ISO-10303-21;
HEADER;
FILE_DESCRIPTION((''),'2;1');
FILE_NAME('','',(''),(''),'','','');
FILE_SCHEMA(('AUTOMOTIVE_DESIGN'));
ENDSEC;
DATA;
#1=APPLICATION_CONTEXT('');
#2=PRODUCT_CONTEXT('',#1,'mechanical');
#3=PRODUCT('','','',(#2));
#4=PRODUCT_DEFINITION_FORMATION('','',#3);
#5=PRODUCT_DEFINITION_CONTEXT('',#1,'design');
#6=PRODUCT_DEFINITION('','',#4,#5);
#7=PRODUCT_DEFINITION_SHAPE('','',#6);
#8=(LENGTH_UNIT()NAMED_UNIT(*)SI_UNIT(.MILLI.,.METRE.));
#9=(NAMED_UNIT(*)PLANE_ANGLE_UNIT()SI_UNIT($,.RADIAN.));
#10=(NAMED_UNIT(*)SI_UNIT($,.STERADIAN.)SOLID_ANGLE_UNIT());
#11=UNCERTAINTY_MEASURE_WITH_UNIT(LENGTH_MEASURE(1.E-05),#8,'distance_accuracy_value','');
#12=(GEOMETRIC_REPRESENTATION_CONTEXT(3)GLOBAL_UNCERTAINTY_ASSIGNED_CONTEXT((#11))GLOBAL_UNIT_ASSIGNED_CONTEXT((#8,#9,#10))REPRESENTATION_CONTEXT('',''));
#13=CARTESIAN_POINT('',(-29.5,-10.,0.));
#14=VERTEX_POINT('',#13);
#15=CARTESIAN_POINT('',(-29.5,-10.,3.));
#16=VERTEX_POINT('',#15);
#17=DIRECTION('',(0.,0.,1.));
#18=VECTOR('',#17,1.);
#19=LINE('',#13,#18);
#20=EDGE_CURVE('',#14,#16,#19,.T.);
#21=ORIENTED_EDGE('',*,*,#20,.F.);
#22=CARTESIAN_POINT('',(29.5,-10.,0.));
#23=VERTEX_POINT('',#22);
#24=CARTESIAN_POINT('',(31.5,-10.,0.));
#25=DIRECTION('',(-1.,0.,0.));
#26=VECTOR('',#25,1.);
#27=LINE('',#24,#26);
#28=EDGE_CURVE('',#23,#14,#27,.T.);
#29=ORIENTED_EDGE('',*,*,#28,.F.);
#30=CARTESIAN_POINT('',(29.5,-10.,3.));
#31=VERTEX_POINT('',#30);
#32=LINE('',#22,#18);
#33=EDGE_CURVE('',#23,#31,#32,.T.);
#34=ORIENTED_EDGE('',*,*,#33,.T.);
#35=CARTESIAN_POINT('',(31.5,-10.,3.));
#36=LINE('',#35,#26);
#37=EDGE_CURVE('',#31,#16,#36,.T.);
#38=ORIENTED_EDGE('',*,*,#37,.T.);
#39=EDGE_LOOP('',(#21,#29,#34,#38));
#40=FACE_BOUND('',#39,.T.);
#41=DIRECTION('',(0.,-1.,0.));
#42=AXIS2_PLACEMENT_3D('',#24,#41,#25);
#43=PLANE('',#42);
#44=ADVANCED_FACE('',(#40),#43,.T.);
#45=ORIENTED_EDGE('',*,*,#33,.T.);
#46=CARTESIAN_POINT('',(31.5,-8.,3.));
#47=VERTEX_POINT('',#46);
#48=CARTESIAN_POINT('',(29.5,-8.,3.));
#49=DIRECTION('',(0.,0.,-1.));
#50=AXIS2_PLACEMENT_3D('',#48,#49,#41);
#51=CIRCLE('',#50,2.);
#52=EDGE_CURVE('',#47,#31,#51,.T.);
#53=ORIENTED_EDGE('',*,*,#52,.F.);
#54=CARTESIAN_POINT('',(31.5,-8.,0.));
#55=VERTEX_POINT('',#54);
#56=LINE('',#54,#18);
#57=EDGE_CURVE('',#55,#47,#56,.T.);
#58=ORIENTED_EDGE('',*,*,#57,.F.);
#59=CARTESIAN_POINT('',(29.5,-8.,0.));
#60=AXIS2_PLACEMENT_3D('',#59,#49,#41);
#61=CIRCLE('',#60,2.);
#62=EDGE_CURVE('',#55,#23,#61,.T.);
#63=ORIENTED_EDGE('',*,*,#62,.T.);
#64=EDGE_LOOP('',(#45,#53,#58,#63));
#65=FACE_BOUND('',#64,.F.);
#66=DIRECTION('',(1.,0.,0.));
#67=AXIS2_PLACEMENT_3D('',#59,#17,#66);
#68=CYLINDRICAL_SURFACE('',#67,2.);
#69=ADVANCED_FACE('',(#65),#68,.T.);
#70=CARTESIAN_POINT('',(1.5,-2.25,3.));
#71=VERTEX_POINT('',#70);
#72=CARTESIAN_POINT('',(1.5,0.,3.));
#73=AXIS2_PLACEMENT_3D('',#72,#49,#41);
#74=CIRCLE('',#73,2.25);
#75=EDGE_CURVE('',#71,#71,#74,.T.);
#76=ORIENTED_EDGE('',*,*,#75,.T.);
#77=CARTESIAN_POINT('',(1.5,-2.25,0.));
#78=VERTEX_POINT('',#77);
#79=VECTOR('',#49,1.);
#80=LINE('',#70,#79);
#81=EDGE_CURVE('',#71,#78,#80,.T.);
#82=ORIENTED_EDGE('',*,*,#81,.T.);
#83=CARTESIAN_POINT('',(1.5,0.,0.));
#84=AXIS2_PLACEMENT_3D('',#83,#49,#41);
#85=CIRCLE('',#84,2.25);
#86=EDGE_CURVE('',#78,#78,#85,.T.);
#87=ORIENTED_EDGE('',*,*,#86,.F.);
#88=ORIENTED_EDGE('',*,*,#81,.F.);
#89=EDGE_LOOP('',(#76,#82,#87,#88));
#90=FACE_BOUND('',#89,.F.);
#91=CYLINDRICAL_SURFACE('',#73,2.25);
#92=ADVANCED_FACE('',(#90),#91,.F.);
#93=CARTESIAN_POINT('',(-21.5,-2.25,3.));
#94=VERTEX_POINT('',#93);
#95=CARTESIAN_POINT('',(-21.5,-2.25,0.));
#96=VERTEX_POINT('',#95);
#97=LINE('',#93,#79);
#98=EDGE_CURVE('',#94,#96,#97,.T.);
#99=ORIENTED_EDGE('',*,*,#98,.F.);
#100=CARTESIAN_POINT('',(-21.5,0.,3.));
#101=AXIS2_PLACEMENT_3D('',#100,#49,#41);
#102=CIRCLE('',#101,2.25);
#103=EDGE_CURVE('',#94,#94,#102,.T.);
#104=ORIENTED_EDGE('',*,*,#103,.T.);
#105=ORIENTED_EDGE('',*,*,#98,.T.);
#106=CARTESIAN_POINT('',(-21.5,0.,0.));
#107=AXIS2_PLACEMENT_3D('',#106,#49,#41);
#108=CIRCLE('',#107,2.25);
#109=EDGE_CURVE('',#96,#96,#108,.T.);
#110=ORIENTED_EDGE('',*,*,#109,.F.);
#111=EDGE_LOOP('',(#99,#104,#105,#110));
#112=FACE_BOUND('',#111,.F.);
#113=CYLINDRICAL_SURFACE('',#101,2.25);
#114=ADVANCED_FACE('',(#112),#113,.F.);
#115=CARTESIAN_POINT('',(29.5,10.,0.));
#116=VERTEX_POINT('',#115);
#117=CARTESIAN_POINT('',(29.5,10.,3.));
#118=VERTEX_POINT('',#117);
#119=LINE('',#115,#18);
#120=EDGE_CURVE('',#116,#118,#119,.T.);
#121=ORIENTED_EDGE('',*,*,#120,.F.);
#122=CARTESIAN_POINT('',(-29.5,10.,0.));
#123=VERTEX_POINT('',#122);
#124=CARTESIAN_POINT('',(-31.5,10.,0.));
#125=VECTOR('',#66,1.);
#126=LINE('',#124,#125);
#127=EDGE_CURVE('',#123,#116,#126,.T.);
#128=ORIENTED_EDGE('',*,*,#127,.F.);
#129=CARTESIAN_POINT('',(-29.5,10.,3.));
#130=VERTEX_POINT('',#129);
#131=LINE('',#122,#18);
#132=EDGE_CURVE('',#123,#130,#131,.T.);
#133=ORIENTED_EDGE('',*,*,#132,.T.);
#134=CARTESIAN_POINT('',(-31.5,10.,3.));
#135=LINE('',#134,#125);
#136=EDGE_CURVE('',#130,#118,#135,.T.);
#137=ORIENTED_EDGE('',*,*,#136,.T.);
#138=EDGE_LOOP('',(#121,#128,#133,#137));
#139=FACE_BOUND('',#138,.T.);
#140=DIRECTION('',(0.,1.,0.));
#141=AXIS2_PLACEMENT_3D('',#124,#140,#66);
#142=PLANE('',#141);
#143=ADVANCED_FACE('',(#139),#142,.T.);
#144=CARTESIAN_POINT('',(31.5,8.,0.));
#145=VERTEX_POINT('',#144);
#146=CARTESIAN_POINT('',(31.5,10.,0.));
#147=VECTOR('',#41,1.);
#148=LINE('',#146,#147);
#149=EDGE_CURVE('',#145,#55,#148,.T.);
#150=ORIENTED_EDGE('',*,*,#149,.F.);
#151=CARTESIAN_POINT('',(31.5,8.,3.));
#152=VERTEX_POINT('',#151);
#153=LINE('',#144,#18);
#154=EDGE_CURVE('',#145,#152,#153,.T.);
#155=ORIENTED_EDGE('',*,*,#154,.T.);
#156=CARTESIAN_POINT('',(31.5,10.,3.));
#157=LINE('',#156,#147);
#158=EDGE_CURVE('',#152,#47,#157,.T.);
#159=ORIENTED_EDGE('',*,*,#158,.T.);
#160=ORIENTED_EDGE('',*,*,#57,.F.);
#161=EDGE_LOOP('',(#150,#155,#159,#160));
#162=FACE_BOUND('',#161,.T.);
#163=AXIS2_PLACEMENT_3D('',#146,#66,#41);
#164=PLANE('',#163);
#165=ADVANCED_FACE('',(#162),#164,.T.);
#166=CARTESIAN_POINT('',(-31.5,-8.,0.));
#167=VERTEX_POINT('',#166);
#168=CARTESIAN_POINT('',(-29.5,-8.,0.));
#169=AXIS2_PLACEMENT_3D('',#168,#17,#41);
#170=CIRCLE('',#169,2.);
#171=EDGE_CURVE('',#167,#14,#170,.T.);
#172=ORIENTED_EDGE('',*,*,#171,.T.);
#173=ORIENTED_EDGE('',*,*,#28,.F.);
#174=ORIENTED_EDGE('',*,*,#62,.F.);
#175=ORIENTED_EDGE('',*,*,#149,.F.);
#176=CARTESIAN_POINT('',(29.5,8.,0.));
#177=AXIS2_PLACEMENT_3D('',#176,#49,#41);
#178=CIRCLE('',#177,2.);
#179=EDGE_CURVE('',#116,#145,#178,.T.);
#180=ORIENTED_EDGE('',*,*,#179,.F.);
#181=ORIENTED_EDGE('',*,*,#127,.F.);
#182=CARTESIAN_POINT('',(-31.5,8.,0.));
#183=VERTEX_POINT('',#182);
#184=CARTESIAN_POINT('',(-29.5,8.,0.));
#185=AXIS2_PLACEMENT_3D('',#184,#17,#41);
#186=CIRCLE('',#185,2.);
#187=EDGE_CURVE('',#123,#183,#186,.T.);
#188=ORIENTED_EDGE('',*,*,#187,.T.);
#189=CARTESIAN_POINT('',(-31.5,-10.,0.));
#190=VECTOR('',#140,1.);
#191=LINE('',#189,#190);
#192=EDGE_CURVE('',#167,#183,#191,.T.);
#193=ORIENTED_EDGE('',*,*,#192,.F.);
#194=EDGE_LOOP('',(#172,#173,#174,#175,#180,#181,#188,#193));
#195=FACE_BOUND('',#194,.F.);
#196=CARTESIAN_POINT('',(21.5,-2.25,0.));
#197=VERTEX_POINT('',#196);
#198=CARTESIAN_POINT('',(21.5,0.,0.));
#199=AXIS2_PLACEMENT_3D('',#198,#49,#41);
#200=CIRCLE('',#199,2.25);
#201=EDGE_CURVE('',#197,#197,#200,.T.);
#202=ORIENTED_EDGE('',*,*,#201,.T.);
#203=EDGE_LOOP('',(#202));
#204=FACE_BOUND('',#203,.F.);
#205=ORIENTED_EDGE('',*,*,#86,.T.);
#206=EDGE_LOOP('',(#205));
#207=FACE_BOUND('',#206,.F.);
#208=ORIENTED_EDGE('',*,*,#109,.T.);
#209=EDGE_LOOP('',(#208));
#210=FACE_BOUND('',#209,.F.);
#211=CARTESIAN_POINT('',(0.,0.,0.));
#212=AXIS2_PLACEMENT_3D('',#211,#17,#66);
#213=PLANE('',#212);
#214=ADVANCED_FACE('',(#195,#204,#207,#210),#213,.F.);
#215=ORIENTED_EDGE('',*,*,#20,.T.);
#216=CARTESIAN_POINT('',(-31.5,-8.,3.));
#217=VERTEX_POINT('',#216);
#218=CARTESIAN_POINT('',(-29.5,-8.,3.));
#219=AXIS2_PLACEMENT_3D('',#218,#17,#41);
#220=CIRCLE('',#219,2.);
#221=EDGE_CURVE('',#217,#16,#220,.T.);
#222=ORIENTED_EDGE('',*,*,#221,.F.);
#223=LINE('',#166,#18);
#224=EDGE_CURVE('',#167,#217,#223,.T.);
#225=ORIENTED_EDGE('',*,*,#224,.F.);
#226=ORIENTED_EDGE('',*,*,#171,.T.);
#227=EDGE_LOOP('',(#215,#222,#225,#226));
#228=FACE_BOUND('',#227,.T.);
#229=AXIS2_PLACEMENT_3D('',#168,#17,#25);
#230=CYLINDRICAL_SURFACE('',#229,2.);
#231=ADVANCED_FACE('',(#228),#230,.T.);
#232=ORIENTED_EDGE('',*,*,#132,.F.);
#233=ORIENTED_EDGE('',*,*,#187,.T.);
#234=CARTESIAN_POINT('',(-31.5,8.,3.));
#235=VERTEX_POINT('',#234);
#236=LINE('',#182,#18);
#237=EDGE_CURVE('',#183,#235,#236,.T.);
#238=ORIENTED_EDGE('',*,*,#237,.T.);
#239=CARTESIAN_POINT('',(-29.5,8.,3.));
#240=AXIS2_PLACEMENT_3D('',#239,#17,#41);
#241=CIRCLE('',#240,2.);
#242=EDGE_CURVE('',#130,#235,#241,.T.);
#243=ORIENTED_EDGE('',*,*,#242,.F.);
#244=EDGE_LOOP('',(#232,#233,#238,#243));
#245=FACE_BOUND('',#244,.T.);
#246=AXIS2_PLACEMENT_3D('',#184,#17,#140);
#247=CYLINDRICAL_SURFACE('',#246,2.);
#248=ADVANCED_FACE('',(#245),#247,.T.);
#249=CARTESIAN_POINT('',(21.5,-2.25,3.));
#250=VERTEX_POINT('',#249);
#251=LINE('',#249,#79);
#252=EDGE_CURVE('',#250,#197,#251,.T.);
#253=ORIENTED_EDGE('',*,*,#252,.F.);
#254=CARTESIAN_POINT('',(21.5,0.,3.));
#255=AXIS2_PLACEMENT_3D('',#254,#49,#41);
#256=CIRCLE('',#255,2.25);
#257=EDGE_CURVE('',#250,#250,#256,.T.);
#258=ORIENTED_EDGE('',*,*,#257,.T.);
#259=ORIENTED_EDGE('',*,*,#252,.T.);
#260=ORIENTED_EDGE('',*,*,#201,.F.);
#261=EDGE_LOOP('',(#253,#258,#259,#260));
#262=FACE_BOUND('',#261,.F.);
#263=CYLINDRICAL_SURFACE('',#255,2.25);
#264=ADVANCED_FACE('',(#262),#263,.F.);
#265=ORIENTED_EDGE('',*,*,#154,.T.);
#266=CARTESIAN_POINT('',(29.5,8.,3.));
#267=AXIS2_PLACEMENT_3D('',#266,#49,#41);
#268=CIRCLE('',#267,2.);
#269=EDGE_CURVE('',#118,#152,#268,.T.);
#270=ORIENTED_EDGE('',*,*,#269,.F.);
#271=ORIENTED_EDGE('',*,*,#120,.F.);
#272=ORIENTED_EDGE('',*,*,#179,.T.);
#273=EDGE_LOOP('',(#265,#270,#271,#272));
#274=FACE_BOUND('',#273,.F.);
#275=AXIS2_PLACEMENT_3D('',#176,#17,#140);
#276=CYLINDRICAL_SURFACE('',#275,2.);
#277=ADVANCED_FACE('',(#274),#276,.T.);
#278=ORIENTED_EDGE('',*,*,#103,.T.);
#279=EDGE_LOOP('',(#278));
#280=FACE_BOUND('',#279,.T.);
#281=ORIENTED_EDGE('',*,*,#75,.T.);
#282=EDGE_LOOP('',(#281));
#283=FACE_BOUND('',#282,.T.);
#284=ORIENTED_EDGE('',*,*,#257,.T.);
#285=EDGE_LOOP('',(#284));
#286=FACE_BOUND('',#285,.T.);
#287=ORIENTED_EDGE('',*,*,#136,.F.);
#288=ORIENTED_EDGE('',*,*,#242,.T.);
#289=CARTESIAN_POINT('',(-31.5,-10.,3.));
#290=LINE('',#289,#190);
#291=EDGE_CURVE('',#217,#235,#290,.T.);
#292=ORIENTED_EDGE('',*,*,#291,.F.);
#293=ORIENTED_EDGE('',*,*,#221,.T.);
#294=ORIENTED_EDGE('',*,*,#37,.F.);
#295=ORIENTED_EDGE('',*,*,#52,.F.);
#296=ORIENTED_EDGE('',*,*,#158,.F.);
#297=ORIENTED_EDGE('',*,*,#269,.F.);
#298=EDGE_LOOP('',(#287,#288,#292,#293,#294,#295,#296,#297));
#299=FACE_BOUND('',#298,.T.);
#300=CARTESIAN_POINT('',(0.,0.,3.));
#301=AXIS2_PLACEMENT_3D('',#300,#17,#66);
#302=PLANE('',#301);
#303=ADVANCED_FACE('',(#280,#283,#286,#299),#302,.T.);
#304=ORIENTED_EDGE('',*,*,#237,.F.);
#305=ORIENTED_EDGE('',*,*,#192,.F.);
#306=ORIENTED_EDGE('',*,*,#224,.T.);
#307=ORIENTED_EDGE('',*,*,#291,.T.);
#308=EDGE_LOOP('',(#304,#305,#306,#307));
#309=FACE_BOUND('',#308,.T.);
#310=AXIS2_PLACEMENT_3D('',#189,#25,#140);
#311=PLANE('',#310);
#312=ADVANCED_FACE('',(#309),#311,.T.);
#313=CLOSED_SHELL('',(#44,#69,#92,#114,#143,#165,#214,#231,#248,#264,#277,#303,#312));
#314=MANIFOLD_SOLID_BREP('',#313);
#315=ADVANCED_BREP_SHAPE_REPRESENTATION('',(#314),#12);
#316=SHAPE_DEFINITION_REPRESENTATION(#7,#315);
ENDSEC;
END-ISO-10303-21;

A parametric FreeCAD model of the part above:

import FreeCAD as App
import Part
import Sketcher
Q = App.Units.Quantity


def edges_at(feature, points):
    """Names of the edges that pass closest to the given points."""
    edges = feature.Shape.Edges
    near = lambda p: min(range(len(edges)), key=lambda i: edges[i].distToShape(Part.Vertex(*p))[0])
    return sorted({f"Edge{near(p) + 1}" for p in points})

doc = App.newDocument("Part")
params = doc.addObject("Spreadsheet::Sheet", "Params")
for row, (alias, value) in enumerate([
    ("sketch1_width", "63 mm"),
    ("sketch1_height", "20 mm"),
    ("pad1_length", "3 mm"),
    ("sketch2_diameter", "4.5 mm"),
    ("hole_diameter", "4.5 mm"),
    ("fillet_radius", "2 mm"),
], start=1):
    params.set(f"A{row}", alias)
    params.set(f"B{row}", "=" + value)
    params.setAlias(f"B{row}", alias)

body = doc.addObject("PartDesign::Body", "Body")

# Sketch on XY plane
sketch1 = body.newObject("Sketcher::SketchObject", "Sketch")
sketch1.AttachmentSupport = (doc.getObject("XY_Plane"), [""])
sketch1.MapMode = "FlatFace"
sketch1.addGeometry([
    Part.LineSegment(App.Vector(32, 10, 0), App.Vector(-32, 10, 0)),
    Part.LineSegment(App.Vector(-32, 10, 0), App.Vector(-32, -10, 0)),
    Part.LineSegment(App.Vector(-32, -10, 0), App.Vector(32, -10, 0)),
    Part.LineSegment(App.Vector(32, -10, 0), App.Vector(32, 10, 0)),
], False)
sketch1.addConstraint([
    Sketcher.Constraint("Coincident", 0, 2, 1, 1),
    Sketcher.Constraint("Coincident", 1, 2, 2, 1),
    Sketcher.Constraint("Coincident", 2, 2, 3, 1),
    Sketcher.Constraint("Coincident", 3, 2, 0, 1),
    Sketcher.Constraint("Horizontal", 0),
    Sketcher.Constraint("Vertical", 1),
    Sketcher.Constraint("Horizontal", 2),
    Sketcher.Constraint("Vertical", 3),
    Sketcher.Constraint("Symmetric", 0, 2, 2, 2, -1, 1),
    Sketcher.Constraint("DistanceX", 0, 2, 0, 1, Q("63 mm")),
    Sketcher.Constraint("DistanceY", 1, 2, 1, 1, Q("20 mm")),
])
sketch1.setExpression("Constraints[9]", "Params.sketch1_width")
sketch1.setExpression("Constraints[10]", "Params.sketch1_height")
pad1 = body.newObject("PartDesign::Pad", "Pad")
pad1.Profile = sketch1
pad1.setExpression("Length", "Params.pad1_length")

# Sketch on XY plane
sketch2 = body.newObject("Sketcher::SketchObject", "Sketch001")
sketch2.AttachmentSupport = (doc.getObject("XY_Plane"), [""])
sketch2.MapMode = "FlatFace"
sketch2.AttachmentOffset = App.Placement(App.Vector(0, 0, 3), App.Rotation())
sketch2.addGeometry([
    Part.Circle(App.Vector(-21.5, 0, 0), App.Vector(0, 0, 1), 2.2),
    Part.Circle(App.Vector(1.5, 0, 0), App.Vector(0, 0, 1), 2.2),
    Part.Circle(App.Vector(21.5, 0, 0), App.Vector(0, 0, 1), 2.2),
], False)
sketch2.addConstraint([
    Sketcher.Constraint("Equal", 0, 1),
    Sketcher.Constraint("Equal", 1, 2),
    Sketcher.Constraint("Symmetric", 0, 3, 2, 3, -1, 1),
    Sketcher.Constraint("PointOnObject", 0, 3, -1),
    Sketcher.Constraint("PointOnObject", 1, 3, -1),
    Sketcher.Constraint("Diameter", 0, Q("4.5 mm")),
    Sketcher.Constraint("DistanceX", 0, 3, 1, 3, Q("23 mm")),
    Sketcher.Constraint("DistanceX", 1, 3, 2, 3, Q("20 mm")),
])
sketch2.setExpression("Constraints[5]", "Params.sketch2_diameter")
doc.recompute()
hole = body.newObject("PartDesign::Hole", "Hole")
hole.Profile = sketch2
hole.ThreadType = "None"
hole.setExpression("Diameter", "Params.hole_diameter")
hole.DepthType = "ThroughAll"
doc.recompute()

fillet = body.newObject("PartDesign::Fillet", "Fillet")
fillet.Base = (hole, edges_at(hole, [
    (-31.5, 10, 1.5),
    (31.5, 10, 1.5),
    (31.5, -10, 1.5),
    (-31.5, -10, 1.5),
]))
fillet.setExpression("Radius", "Params.fillet_radius")

doc.recompute()
